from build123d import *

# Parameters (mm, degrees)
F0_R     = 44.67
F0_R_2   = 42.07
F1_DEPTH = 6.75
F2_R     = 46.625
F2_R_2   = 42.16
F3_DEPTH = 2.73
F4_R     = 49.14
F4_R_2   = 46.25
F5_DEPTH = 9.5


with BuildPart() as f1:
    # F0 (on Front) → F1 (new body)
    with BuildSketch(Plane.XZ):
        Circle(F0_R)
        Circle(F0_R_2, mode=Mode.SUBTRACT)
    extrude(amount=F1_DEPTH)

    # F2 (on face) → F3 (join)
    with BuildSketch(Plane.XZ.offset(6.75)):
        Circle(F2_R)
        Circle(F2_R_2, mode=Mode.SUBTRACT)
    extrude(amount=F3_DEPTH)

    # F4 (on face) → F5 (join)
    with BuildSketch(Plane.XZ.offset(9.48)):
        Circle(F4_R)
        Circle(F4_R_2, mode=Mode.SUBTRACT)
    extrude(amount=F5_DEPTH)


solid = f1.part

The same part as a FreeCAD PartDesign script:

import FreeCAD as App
import Part
import Sketcher

V = App.Vector

doc = App.newDocument("Part")
params = doc.addObject("Spreadsheet::Sheet", "Params")
for row, (alias, value) in enumerate([
    ("sketch1_diameter", "89.34 mm"),
    ("sketch1_diameter2", "84.14 mm"),
    ("pad1_length", "6.75 mm"),
    ("sketch2_diameter", "93.25 mm"),
    ("sketch2_diameter2", "84.32 mm"),
    ("pad2_length", "2.73 mm"),
    ("sketch3_diameter", "92.5 mm"),
    ("sketch3_diameter2", "98.28 mm"),
    ("pad3_length", "9.5 mm"),
], start=1):
    params.set(f"A{row}", alias)
    params.set(f"B{row}", "=" + value)
    params.setAlias(f"B{row}", alias)

body = doc.addObject("PartDesign::Body", "Body")

# Sketch on XZ plane
sketch1 = body.newObject("Sketcher::SketchObject", "Sketch")
sketch1.AttachmentSupport = (doc.getObject("XZ_Plane"), [""])
sketch1.MapMode = "FlatFace"
sketch1.addGeometry([
    Part.Circle(V(0, 0, 0), V(0, 0, 1), 45),
    Part.Circle(V(0, 0, 0), V(0, 0, 1), 42),
], False)
sketch1.addConstraint([
    Sketcher.Constraint("Coincident", 0, 3, -1, 1),
    Sketcher.Constraint("Coincident", 1, 3, -1, 1),
    Sketcher.Constraint("Diameter", 0, 89.34),
    Sketcher.Constraint("Diameter", 1, 84.14),
])
sketch1.setExpression("Constraints[2]", "Params.sketch1_diameter")
sketch1.setExpression("Constraints[3]", "Params.sketch1_diameter2")
pad1 = body.newObject("PartDesign::Pad", "Pad")
pad1.Profile = sketch1
pad1.setExpression("Length", "Params.pad1_length")

# Sketch on XZ plane
sketch2 = body.newObject("Sketcher::SketchObject", "Sketch001")
sketch2.AttachmentSupport = (doc.getObject("XZ_Plane"), [""])
sketch2.MapMode = "FlatFace"
sketch2.AttachmentOffset = App.Placement(V(0, 0, 6.75), App.Rotation())
sketch2.addGeometry([
    Part.Circle(V(0, 0, 0), V(0, 0, 1), 47),
    Part.Circle(V(0, 0, 0), V(0, 0, 1), 42),
], False)
sketch2.addConstraint([
    Sketcher.Constraint("Coincident", 0, 3, -1, 1),
    Sketcher.Constraint("Coincident", 1, 3, -1, 1),
    Sketcher.Constraint("Diameter", 0, 93.25),
    Sketcher.Constraint("Diameter", 1, 84.32),
])
sketch2.setExpression("Constraints[2]", "Params.sketch2_diameter")
sketch2.setExpression("Constraints[3]", "Params.sketch2_diameter2")
pad2 = body.newObject("PartDesign::Pad", "Pad001")
pad2.Profile = sketch2
pad2.setExpression("Length", "Params.pad2_length")

# Sketch on XZ plane
sketch3 = body.newObject("Sketcher::SketchObject", "Sketch002")
sketch3.AttachmentSupport = (doc.getObject("XZ_Plane"), [""])
sketch3.MapMode = "FlatFace"
sketch3.AttachmentOffset = App.Placement(V(0, 0, 9.48), App.Rotation())
sketch3.addGeometry([
    Part.Circle(V(0, 0, 0), V(0, 0, 1), 49),
    Part.Circle(V(0, 0, 0), V(0, 0, 1), 46),
], False)
sketch3.addConstraint([
    Sketcher.Constraint("Coincident", 0, 3, -1, 1),
    Sketcher.Constraint("Coincident", 1, 3, -1, 1),
    Sketcher.Constraint("Diameter", 1, 92.5),
    Sketcher.Constraint("Diameter", 0, 98.28),
])
sketch3.setExpression("Constraints[2]", "Params.sketch3_diameter")
sketch3.setExpression("Constraints[3]", "Params.sketch3_diameter2")
pad3 = body.newObject("PartDesign::Pad", "Pad002")
pad3.Profile = sketch3
pad3.setExpression("Length", "Params.pad3_length")

doc.recompute()
